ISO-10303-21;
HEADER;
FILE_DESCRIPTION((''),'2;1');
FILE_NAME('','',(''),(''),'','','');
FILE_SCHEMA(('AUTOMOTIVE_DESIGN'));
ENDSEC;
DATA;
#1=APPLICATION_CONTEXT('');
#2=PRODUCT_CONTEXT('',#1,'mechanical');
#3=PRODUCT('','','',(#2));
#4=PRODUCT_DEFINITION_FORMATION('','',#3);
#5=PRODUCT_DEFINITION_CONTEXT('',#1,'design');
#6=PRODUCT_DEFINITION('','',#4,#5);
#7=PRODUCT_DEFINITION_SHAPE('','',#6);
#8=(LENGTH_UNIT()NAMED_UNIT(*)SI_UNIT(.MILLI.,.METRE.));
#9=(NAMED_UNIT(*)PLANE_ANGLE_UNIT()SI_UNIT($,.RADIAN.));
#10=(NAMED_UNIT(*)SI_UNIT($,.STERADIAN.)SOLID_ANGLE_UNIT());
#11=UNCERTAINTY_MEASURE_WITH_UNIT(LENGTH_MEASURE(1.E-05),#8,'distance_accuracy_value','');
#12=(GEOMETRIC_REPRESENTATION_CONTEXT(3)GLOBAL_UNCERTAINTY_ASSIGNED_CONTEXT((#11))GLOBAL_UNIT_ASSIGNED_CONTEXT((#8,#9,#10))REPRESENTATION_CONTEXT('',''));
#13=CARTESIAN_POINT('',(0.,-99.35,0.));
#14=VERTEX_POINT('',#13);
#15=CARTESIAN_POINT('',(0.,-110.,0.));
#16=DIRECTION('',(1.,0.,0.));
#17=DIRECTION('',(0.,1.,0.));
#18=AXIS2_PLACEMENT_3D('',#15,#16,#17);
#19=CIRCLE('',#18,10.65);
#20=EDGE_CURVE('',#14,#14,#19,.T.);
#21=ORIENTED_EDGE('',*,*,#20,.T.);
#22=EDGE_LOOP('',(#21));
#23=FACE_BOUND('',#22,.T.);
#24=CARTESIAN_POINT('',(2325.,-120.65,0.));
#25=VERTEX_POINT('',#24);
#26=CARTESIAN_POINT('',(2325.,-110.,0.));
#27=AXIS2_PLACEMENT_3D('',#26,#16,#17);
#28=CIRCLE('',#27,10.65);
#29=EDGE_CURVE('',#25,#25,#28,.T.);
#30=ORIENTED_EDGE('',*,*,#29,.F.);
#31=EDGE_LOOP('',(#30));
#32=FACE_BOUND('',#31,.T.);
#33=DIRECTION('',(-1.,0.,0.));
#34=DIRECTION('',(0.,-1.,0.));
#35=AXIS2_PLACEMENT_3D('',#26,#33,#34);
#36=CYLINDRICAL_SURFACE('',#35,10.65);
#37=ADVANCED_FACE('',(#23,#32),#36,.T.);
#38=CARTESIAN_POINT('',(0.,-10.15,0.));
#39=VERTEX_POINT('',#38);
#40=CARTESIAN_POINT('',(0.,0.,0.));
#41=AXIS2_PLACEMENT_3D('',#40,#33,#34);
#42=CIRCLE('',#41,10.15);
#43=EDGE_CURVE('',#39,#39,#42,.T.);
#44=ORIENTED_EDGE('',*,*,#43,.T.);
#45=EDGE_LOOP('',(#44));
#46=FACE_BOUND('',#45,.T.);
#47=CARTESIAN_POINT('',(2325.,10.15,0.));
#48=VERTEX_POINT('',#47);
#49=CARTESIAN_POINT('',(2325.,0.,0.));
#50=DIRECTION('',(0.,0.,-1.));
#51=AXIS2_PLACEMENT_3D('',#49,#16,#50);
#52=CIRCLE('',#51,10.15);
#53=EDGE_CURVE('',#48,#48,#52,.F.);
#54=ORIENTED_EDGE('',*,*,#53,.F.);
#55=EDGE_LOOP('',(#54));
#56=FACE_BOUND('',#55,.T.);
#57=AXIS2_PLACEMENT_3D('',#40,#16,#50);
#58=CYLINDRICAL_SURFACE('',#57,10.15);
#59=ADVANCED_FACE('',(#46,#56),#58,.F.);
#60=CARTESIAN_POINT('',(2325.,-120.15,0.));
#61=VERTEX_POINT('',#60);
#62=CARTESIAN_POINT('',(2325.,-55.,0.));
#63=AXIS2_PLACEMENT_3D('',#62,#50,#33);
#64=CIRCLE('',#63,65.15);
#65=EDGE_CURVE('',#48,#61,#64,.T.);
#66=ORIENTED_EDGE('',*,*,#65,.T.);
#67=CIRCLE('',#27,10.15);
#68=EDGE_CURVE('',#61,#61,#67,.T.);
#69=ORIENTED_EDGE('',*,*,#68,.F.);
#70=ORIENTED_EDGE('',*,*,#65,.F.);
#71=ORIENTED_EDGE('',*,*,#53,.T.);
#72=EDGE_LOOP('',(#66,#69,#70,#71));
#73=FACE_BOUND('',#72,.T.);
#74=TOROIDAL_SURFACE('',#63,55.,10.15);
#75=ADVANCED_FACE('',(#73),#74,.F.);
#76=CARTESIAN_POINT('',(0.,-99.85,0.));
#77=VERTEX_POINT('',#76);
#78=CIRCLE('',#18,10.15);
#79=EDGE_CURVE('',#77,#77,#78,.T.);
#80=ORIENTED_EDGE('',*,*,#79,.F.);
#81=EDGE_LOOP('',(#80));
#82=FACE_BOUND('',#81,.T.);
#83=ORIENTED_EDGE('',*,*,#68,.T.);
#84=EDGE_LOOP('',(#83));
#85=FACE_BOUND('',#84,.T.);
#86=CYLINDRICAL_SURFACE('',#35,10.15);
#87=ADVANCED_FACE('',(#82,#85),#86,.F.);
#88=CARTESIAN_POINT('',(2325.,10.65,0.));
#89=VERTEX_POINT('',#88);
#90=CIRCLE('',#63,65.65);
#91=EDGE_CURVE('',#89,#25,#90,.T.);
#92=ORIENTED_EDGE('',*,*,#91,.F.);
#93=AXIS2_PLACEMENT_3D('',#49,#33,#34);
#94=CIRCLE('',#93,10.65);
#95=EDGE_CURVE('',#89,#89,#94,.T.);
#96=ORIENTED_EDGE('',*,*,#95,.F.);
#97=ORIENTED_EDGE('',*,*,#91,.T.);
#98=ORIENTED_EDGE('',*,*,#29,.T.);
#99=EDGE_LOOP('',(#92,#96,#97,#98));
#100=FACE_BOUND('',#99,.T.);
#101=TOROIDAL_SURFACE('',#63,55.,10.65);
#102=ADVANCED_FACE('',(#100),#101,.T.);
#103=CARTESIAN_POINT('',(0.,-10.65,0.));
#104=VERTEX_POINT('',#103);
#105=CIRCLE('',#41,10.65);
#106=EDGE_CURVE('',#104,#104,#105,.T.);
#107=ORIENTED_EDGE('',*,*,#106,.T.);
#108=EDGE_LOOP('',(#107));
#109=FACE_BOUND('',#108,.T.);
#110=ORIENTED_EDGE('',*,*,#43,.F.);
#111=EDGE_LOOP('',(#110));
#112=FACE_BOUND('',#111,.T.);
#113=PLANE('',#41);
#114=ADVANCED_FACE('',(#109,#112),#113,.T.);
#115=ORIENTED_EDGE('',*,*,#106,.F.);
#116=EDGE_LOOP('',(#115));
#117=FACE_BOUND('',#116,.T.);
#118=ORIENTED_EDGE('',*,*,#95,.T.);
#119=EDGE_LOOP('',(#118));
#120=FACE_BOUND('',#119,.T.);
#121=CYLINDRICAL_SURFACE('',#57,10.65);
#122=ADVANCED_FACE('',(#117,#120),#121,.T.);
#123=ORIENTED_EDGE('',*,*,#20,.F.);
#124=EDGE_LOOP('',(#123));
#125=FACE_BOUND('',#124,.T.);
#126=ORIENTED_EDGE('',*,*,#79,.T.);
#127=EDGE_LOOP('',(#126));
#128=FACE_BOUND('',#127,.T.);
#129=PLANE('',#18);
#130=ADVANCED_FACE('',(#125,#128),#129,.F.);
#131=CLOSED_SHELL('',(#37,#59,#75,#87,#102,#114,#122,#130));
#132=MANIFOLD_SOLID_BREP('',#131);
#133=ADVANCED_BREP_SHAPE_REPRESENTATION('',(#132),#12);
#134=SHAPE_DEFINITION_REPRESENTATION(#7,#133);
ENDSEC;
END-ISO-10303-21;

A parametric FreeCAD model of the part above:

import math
import FreeCAD as App
import Part
import Sketcher
from FreeCAD import Vector

doc = App.newDocument("Part")
params = doc.addObject("Spreadsheet::Sheet", "Params")
for row, (alias, value) in enumerate([
    ("sketch1_diameter", "21.3 mm"),
    ("sketch1_diameter2", "20.3 mm"),
    ("sketch2_radius", "55 mm"),
    ("sketch2_width", "2325 mm"),
], start=1):
    params.set(f"A{row}", alias)
    params.set(f"B{row}", "=" + value)
    params.setAlias(f"B{row}", alias)

body = doc.addObject("PartDesign::Body", "Body")

# Sketch on YZ plane
sketch1 = doc.addObject("Sketcher::SketchObject", "Sketch")
body.addObject(sketch1)
sketch1.AttachmentSupport = (doc.YZ_Plane, [""])
sketch1.MapMode = "FlatFace"
sketch1.addGeometry(Part.Circle(Vector(0, 0, 0), Vector(0, 0, 1), 10.65), False)
sketch1.addGeometry(Part.Circle(Vector(0, 0, 0), Vector(0, 0, 1), 10.15), False)
sketch1.addConstraint(Sketcher.Constraint("Coincident", 0, 3, -1, 1))
sketch1.addConstraint(Sketcher.Constraint("Coincident", 1, 3, -1, 1))
sketch1.addConstraint(Sketcher.Constraint("Diameter", 0, 21.3))
sketch1.addConstraint(Sketcher.Constraint("Diameter", 1, 20.3))
sketch1.setExpression("Constraints[2]", "Params.sketch1_diameter")
sketch1.setExpression("Constraints[3]", "Params.sketch1_diameter2")

# Sketch on XY plane
sketch2 = doc.addObject("Sketcher::SketchObject", "Sketch001")
body.addObject(sketch2)
sketch2.AttachmentSupport = (doc.XY_Plane, [""])
sketch2.MapMode = "FlatFace"
sketch2.addGeometry(Part.LineSegment(Vector(0, 0, 0), Vector(2325, 0, 0)), False)
sketch2.addGeometry(Part.ArcOfCircle(Part.Circle(Vector(2325, -55, 0), Vector(0, 0, 1), 55), math.radians(-90), math.radians(90)), False)
sketch2.addGeometry(Part.LineSegment(Vector(2325, -110, 0), Vector(0, -110, 0)), False)
sketch2.addConstraint(Sketcher.Constraint("Tangent", 0, 2, 1, 2))
sketch2.addConstraint(Sketcher.Constraint("Tangent", 1, 1, 2, 1))
sketch2.addConstraint(Sketcher.Constraint("Horizontal", 0))
sketch2.addConstraint(Sketcher.Constraint("Horizontal", 2))
sketch2.addConstraint(Sketcher.Constraint("Coincident", 0, 1, -1, 1))
sketch2.addConstraint(Sketcher.Constraint("PointOnObject", 2, 2, -2))
sketch2.addConstraint(Sketcher.Constraint("Radius", 1, 55.0))
sketch2.addConstraint(Sketcher.Constraint("DistanceX", 0, 1, 0, 2, 2325.0))
sketch2.setExpression("Constraints[6]", "Params.sketch2_radius")
sketch2.setExpression("Constraints[7]", "Params.sketch2_width")
doc.recompute()

additivepipe = doc.addObject("PartDesign::AdditivePipe", "AdditivePipe")
body.addObject(additivepipe)
additivepipe.Profile = sketch1
additivepipe.Spine = (sketch2, ["Edge1", "Edge2", "Edge3"])

doc.recompute()
